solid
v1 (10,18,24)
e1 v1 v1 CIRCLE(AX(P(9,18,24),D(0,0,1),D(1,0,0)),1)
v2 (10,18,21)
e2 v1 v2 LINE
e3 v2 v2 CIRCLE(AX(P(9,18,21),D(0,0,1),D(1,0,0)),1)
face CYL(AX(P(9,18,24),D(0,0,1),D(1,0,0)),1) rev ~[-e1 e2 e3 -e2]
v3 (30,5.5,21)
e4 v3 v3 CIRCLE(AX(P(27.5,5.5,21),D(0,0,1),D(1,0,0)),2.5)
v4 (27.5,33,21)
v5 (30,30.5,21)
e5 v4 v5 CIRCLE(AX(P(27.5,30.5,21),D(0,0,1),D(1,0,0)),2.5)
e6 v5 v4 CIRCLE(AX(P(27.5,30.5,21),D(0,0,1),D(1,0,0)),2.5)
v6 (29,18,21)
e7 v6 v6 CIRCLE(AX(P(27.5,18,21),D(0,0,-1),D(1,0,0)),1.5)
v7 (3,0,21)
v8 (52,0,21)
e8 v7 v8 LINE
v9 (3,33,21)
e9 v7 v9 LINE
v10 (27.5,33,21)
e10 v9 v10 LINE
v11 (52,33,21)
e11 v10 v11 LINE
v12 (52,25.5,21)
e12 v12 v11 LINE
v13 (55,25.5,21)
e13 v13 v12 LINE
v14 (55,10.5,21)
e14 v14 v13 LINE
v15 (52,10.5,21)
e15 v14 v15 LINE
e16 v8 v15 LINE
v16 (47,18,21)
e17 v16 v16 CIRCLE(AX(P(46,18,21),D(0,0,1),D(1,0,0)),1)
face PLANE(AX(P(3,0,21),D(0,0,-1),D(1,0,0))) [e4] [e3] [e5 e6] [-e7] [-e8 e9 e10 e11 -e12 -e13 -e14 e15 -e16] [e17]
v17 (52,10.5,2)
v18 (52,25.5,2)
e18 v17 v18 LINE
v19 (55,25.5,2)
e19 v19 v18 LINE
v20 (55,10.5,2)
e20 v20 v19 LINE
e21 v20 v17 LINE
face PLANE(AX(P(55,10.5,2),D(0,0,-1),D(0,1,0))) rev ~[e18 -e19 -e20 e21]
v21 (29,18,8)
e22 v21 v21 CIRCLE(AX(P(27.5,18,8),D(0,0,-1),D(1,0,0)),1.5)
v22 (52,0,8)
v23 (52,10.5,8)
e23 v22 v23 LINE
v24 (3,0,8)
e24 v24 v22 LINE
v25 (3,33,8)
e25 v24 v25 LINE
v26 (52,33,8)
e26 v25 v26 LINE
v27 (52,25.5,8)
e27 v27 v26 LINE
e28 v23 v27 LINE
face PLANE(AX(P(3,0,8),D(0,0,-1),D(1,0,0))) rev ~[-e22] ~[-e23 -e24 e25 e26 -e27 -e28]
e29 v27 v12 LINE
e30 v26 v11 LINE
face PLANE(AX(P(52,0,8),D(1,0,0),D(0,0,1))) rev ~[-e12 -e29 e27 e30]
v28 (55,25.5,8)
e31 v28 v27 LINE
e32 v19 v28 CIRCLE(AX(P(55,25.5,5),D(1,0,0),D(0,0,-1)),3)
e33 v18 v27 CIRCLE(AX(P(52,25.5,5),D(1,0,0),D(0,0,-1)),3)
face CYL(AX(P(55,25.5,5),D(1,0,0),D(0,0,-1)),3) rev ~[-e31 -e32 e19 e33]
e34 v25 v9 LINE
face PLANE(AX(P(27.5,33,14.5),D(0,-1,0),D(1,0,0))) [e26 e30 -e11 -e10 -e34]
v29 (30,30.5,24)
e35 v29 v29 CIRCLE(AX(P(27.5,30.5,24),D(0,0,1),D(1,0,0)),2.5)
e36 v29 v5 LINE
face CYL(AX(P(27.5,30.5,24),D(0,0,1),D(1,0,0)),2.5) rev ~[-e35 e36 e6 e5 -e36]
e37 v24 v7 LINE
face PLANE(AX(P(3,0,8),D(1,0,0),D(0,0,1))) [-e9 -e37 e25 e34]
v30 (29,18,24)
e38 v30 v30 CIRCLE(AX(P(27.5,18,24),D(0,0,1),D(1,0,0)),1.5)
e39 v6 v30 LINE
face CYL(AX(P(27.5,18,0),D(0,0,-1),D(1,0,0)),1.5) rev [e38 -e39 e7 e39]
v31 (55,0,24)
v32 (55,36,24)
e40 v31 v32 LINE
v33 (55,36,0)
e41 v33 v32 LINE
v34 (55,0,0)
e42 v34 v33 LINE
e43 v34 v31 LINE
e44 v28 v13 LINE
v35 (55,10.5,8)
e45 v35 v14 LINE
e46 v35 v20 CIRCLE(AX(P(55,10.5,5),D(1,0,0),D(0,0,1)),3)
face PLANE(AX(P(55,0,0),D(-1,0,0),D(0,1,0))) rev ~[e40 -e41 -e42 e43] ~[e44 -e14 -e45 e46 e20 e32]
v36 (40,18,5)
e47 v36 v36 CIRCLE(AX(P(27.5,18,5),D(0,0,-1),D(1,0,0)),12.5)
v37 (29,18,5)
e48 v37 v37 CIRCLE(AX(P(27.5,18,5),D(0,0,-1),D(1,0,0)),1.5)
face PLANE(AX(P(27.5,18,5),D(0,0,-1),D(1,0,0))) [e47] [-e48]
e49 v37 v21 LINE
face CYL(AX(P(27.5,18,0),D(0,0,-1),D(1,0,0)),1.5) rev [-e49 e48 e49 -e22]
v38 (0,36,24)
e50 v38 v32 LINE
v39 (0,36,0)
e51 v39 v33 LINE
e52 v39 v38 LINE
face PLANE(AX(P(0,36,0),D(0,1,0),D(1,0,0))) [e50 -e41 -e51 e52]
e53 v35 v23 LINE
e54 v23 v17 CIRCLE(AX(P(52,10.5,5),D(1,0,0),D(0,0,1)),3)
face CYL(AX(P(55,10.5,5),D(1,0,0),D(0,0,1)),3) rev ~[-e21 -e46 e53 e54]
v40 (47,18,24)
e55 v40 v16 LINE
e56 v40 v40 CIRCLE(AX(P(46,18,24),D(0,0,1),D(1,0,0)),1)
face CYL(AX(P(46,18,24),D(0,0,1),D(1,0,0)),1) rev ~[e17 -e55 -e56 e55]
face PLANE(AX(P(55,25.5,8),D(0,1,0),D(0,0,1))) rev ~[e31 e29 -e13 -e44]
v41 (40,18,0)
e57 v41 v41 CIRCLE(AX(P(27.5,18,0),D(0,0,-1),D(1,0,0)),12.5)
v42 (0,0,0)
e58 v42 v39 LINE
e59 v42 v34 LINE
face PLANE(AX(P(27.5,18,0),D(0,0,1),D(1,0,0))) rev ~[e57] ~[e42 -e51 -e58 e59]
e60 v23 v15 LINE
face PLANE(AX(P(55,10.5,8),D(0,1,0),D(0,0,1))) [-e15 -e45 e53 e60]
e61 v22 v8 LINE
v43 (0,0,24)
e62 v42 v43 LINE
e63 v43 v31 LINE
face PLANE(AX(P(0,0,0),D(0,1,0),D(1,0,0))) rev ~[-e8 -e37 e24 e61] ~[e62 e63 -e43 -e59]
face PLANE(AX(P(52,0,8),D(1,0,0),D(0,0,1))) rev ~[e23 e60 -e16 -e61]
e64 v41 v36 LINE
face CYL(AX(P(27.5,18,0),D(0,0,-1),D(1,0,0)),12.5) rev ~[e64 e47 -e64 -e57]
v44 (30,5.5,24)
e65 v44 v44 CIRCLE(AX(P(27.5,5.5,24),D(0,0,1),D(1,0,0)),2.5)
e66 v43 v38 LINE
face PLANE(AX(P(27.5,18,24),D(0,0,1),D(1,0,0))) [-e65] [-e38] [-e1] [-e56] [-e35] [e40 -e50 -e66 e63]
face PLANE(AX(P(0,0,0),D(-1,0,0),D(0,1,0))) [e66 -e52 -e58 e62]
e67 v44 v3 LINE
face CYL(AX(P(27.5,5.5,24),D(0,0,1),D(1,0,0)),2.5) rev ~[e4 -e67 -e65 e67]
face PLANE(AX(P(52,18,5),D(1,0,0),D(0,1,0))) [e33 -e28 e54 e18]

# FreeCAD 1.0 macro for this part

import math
import FreeCAD as App
import Part
import Sketcher
from FreeCAD import Vector
Q = App.Units.Quantity

doc = App.newDocument("Part")
params = doc.addObject("Spreadsheet::Sheet", "Params")
for row, (alias, value) in enumerate([
    ("sketch1_diameter", "3 mm"),
    ("sketch1_width", "55 mm"),
    ("sketch1_height", "36 mm"),
    ("pad1_length", "24 mm"),
    ("sketch2_diameter", "25 mm"),
    ("pocket1_length", "5 mm"),
    ("sketch3_width", "49 mm"),
    ("sketch3_height", "13 mm"),
    ("pocket2_length", "33 mm"),
    ("sketch4_diameter", "2 mm"),
    ("sketch4_diameter2", "5 mm"),
    ("pocket3_length", "3 mm"),
    ("sketch5_width", "15 mm"),
    ("sketch5_height", "13 mm"),
    ("pocket4_length", "3 mm"),
    ("sketch6_radius", "3 mm"),
    ("sketch6_width", "15 mm"),
    ("pocket5_length", "3 mm"),
], start=1):
    params.set(f"A{row}", alias)
    params.set(f"B{row}", "=" + value)
    params.setAlias(f"B{row}", alias)

body = doc.addObject("PartDesign::Body", "Body")

sketch1 = body.newObject("Sketcher::SketchObject", "Sketch")
sketch1.AttachmentSupport = (doc.getObject("XY_Plane"), [""])
sketch1.MapMode = "FlatFace"
sketch1.addGeometry([
    Part.LineSegment(Vector(0, 36, 0), Vector(0, 0, 0)),
    Part.LineSegment(Vector(0, 0, 0), Vector(55, 0, 0)),
    Part.LineSegment(Vector(55, 0, 0), Vector(55, 36, 0)),
    Part.LineSegment(Vector(55, 36, 0), Vector(0, 36, 0)),
    Part.Circle(Vector(27.5, 18, 0), Vector(0, 0, 1), 1.5),
], False)
sketch1.addConstraint([
    Sketcher.Constraint("Coincident", 0, 2, 1, 1),
    Sketcher.Constraint("Coincident", 1, 2, 2, 1),
    Sketcher.Constraint("Coincident", 2, 2, 3, 1),
    Sketcher.Constraint("Coincident", 3, 2, 0, 1),
    Sketcher.Constraint("Vertical", 0),
    Sketcher.Constraint("Horizontal", 1),
    Sketcher.Constraint("Vertical", 2),
    Sketcher.Constraint("Horizontal", 3),
    Sketcher.Constraint("Coincident", 0, 2, -1, 1),
    Sketcher.Constraint("Diameter", 4, Q("3 mm")),
    Sketcher.Constraint("DistanceX", 1, 1, 1, 2, Q("55 mm")),
    Sketcher.Constraint("DistanceY", 0, 2, 0, 1, Q("36 mm")),
    Sketcher.Constraint("DistanceY", -1, 1, 4, 3, Q("18 mm")),
    Sketcher.Constraint("DistanceX", -1, 1, 4, 3, Q("27.5 mm")),
])
sketch1.setExpression("Constraints[9]", "Params.sketch1_diameter")
sketch1.setExpression("Constraints[10]", "Params.sketch1_width")
sketch1.setExpression("Constraints[11]", "Params.sketch1_height")
pad1 = body.newObject("PartDesign::Pad", "Pad")
pad1.Profile = sketch1
pad1.setExpression("Length", "Params.pad1_length")

sketch2 = body.newObject("Sketcher::SketchObject", "Sketch001")
sketch2.AttachmentSupport = (doc.getObject("XY_Plane"), [""])
sketch2.MapMode = "FlatFace"
sketch2.addGeometry(Part.Circle(Vector(28, 18, 0), Vector(0, 0, 1), 12), False)
sketch2.addConstraint([
    Sketcher.Constraint("Diameter", 0, Q("25 mm")),
    Sketcher.Constraint("DistanceY", -1, 1, 0, 3, Q("18 mm")),
    Sketcher.Constraint("DistanceX", -1, 1, 0, 3, Q("27.5 mm")),
])
sketch2.setExpression("Constraints[0]", "Params.sketch2_diameter")
pocket1 = body.newObject("PartDesign::Pocket", "Pocket")
pocket1.Profile = sketch2
pocket1.setExpression("Length", "Params.pocket1_length")
pocket1.Reversed = True

sketch3 = body.newObject("Sketcher::SketchObject", "Sketch002")
sketch3.AttachmentSupport = (doc.getObject("XZ_Plane"), [""])
sketch3.MapMode = "FlatFace"
sketch3.addGeometry([
    Part.LineSegment(Vector(3, 21, 0), Vector(3, 8, 0)),
    Part.LineSegment(Vector(3, 8, 0), Vector(52, 8, 0)),
    Part.LineSegment(Vector(52, 8, 0), Vector(52, 21, 0)),
    Part.LineSegment(Vector(52, 21, 0), Vector(3, 21, 0)),
], False)
sketch3.addConstraint([
    Sketcher.Constraint("Coincident", 0, 2, 1, 1),
    Sketcher.Constraint("Coincident", 1, 2, 2, 1),
    Sketcher.Constraint("Coincident", 2, 2, 3, 1),
    Sketcher.Constraint("Coincident", 3, 2, 0, 1),
    Sketcher.Constraint("Vertical", 0),
    Sketcher.Constraint("Horizontal", 1),
    Sketcher.Constraint("Vertical", 2),
    Sketcher.Constraint("Horizontal", 3),
    Sketcher.Constraint("DistanceX", 1, 1, 1, 2, Q("49 mm")),
    Sketcher.Constraint("DistanceY", 0, 2, 0, 1, Q("13 mm")),
    Sketcher.Constraint("DistanceX", -1, 1, 0, 2, Q("3 mm")),
    Sketcher.Constraint("DistanceY", -1, 1, 0, 2, Q("8 mm")),
])
sketch3.setExpression("Constraints[8]", "Params.sketch3_width")
sketch3.setExpression("Constraints[9]", "Params.sketch3_height")
pocket2 = body.newObject("PartDesign::Pocket", "Pocket001")
pocket2.Profile = sketch3
pocket2.setExpression("Length", "Params.pocket2_length")

sketch4 = body.newObject("Sketcher::SketchObject", "Sketch003")
sketch4.AttachmentSupport = (doc.getObject("XY_Plane"), [""])
sketch4.MapMode = "FlatFace"
sketch4.AttachmentOffset = App.Placement(Vector(0, 0, 24), App.Rotation())
sketch4.addGeometry([
    Part.Circle(Vector(9, 18, 0), Vector(0, 0, 1), 1),
    Part.Circle(Vector(46, 18, 0), Vector(0, 0, 1), 1),
    Part.Circle(Vector(27.5, 30.5, 0), Vector(0, 0, 1), 2.5),
    Part.Circle(Vector(27.5, 5.5, 0), Vector(0, 0, 1), 2.5),
], False)
sketch4.addConstraint([
    Sketcher.Constraint("Equal", 0, 1),
    Sketcher.Constraint("Equal", 2, 3),
    Sketcher.Constraint("Horizontal", 0, 3, 1, 3),
    Sketcher.Constraint("Vertical", 2, 3, 3, 3),
    Sketcher.Constraint("Diameter", 0, Q("2 mm")),
    Sketcher.Constraint("Diameter", 2, Q("5 mm")),
    Sketcher.Constraint("DistanceX", -1, 1, 0, 3, Q("9 mm")),
    Sketcher.Constraint("DistanceY", -1, 1, 0, 3, Q("18 mm")),
    Sketcher.Constraint("DistanceX", -1, 1, 1, 3, Q("46 mm")),
    Sketcher.Constraint("DistanceY", 3, 3, 2, 3, Q("25 mm")),
    Sketcher.Constraint("DistanceX", -1, 1, 2, 3, Q("27.5 mm")),
    Sketcher.Constraint("DistanceY", -1, 1, 2, 3, Q("30.5 mm")),
])
sketch4.setExpression("Constraints[4]", "Params.sketch4_diameter")
sketch4.setExpression("Constraints[5]", "Params.sketch4_diameter2")
pocket3 = body.newObject("PartDesign::Pocket", "Pocket002")
pocket3.Profile = sketch4
pocket3.setExpression("Length", "Params.pocket3_length")

sketch5 = body.newObject("Sketcher::SketchObject", "Sketch004")
sketch5.AttachmentSupport = (doc.getObject("YZ_Plane"), [""])
sketch5.MapMode = "FlatFace"
sketch5.AttachmentOffset = App.Placement(Vector(0, 0, 55), App.Rotation())
sketch5.addGeometry([
    Part.LineSegment(Vector(10, 21, 0), Vector(10, 8, 0)),
    Part.LineSegment(Vector(10, 8, 0), Vector(26, 8, 0)),
    Part.LineSegment(Vector(26, 8, 0), Vector(26, 21, 0)),
    Part.LineSegment(Vector(26, 21, 0), Vector(10, 21, 0)),
], False)
sketch5.addConstraint([
    Sketcher.Constraint("Coincident", 0, 2, 1, 1),
    Sketcher.Constraint("Coincident", 1, 2, 2, 1),
    Sketcher.Constraint("Coincident", 2, 2, 3, 1),
    Sketcher.Constraint("Coincident", 3, 2, 0, 1),
    Sketcher.Constraint("Vertical", 0),
    Sketcher.Constraint("Horizontal", 1),
    Sketcher.Constraint("Vertical", 2),
    Sketcher.Constraint("Horizontal", 3),
    Sketcher.Constraint("DistanceX", 1, 1, 1, 2, Q("15 mm")),
    Sketcher.Constraint("DistanceY", 0, 2, 0, 1, Q("13 mm")),
    Sketcher.Constraint("DistanceY", -1, 1, 0, 2, Q("8 mm")),
    Sketcher.Constraint("DistanceX", -1, 1, 0, 2, Q("10.5 mm")),
])
sketch5.setExpression("Constraints[8]", "Params.sketch5_width")
sketch5.setExpression("Constraints[9]", "Params.sketch5_height")
pocket4 = body.newObject("PartDesign::Pocket", "Pocket003")
pocket4.Profile = sketch5
pocket4.setExpression("Length", "Params.pocket4_length")

sketch6 = body.newObject("Sketcher::SketchObject", "Sketch005")
sketch6.AttachmentSupport = (doc.getObject("YZ_Plane"), [""])
sketch6.MapMode = "FlatFace"
sketch6.AttachmentOffset = App.Placement(Vector(0, 0, 55), App.Rotation())
sketch6.addGeometry([
    Part.ArcOfCircle(Part.Circle(Vector(10.5, 5, 0), Vector(0, 0, 1), 3), math.radians(90), math.radians(270)),
    Part.LineSegment(Vector(10.5, 2, 0), Vector(25.5, 2, 0)),
    Part.ArcOfCircle(Part.Circle(Vector(25.5, 5, 0), Vector(0, 0, 1), 3), math.radians(-90), math.radians(90)),
    Part.LineSegment(Vector(25.5, 8, 0), Vector(10.5, 8, 0)),
], False)
sketch6.addConstraint([
    Sketcher.Constraint("Tangent", 0, 2, 1, 1),
    Sketcher.Constraint("Tangent", 1, 2, 2, 1),
    Sketcher.Constraint("Tangent", 2, 2, 3, 1),
    Sketcher.Constraint("Tangent", 3, 2, 0, 1),
    Sketcher.Constraint("Horizontal", 1),
    Sketcher.Constraint("Horizontal", 3),
    Sketcher.Constraint("Radius", 0, Q("3 mm")),
    Sketcher.Constraint("DistanceX", 1, 1, 1, 2, Q("15 mm")),
    Sketcher.Constraint("DistanceY", -1, 1, 0, 3, Q("5 mm")),
    Sketcher.Constraint("DistanceX", -1, 1, 0, 3, Q("10.5 mm")),
])
sketch6.setExpression("Constraints[6]", "Params.sketch6_radius")
sketch6.setExpression("Constraints[7]", "Params.sketch6_width")
pocket5 = body.newObject("PartDesign::Pocket", "Pocket004")
pocket5.Profile = sketch6
pocket5.setExpression("Length", "Params.pocket5_length")

doc.recompute()
